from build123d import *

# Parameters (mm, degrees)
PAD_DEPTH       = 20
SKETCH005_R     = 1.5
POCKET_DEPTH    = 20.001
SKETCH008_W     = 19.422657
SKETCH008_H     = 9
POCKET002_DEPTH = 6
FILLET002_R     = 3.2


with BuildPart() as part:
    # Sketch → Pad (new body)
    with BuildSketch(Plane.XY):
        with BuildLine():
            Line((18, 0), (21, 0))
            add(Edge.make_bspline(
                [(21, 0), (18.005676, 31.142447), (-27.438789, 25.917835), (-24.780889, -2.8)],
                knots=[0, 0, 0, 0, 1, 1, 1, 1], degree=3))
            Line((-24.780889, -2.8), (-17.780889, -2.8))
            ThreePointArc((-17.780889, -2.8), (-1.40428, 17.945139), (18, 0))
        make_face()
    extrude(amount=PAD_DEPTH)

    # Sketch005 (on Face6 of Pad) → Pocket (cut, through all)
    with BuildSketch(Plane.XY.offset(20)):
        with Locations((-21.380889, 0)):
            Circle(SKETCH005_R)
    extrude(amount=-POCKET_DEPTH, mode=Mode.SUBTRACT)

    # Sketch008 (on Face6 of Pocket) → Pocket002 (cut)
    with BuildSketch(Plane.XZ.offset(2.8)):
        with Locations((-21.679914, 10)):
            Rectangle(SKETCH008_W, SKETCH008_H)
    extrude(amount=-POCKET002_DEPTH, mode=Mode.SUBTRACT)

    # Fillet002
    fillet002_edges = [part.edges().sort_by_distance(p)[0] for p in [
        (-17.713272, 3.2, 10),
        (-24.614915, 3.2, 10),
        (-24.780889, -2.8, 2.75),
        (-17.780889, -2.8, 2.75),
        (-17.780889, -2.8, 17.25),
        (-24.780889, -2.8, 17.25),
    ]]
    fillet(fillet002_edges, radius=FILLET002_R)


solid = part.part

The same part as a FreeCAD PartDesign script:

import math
import FreeCAD as App
import Part
import Sketcher
from FreeCAD import Vector


def edges_at(feature, points):
    """Names of the edges that pass closest to the given points."""
    edges = feature.Shape.Edges
    near = lambda p: min(range(len(edges)), key=lambda i: edges[i].distToShape(Part.Vertex(*p))[0])
    return sorted({f"Edge{near(p) + 1}" for p in points})

doc = App.newDocument("Part")
body = doc.addObject("PartDesign::Body", "Body")

sketch1 = doc.addObject("Sketcher::SketchObject", "Sketch")
body.addObject(sketch1)
sketch1.AttachmentSupport = (doc.XY_Plane, [""])
sketch1.MapMode = "FlatFace"
sketch1.addGeometry([
    Part.LineSegment(Vector(18, 0, 0), Vector(21, 0, 0)),
    Part.BSplineCurve([Vector(21, 0, 0), Vector(18.005676, 31.142447, 0), Vector(-27.438789, 25.917835, 0), Vector(-24.780889, -2.8, 0)], [4, 4], [0, 1], False, 3, [1, 1, 1, 1], False),
    Part.LineSegment(Vector(-24.780889, -2.8, 0), Vector(-17.780889, -2.8, 0)),
    Part.ArcOfCircle(Part.Circle(Vector(0, 0, 0), Vector(0, 0, 1), 18), math.radians(-0.000001), math.radians(188.949019)),
], False)
sketch1.addConstraint([
    Sketcher.Constraint("Block", 1),
    Sketcher.Constraint("Coincident", 0, 2, 1, 1),
    Sketcher.Constraint("Coincident", 1, 2, 2, 1),
    Sketcher.Constraint("Coincident", 2, 2, 3, 2),
    Sketcher.Constraint("Coincident", 3, 1, 0, 1),
    Sketcher.Constraint("Horizontal", 0),
    Sketcher.Constraint("Horizontal", 2),
    Sketcher.Constraint("Coincident", 3, 3, -1, 1),
    Sketcher.Constraint("Radius", 3, 18.0),
])
pad1 = doc.addObject("PartDesign::Pad", "Pad")
body.addObject(pad1)
pad1.Profile = sketch1
pad1.Length = 20

sketch2 = doc.addObject("Sketcher::SketchObject", "Sketch001")
body.addObject(sketch2)
sketch2.AttachmentSupport = (doc.XY_Plane, [""])
sketch2.MapMode = "FlatFace"
sketch2.AttachmentOffset = App.Placement(Vector(0, 0, 20), App.Rotation())
sketch2.addGeometry(Part.Circle(Vector(-21.4, 0, 0), Vector(0, 0, 1), 1.5), False)
sketch2.addConstraint([
    Sketcher.Constraint("PointOnObject", 0, 3, -1),
    Sketcher.Constraint("Diameter", 0, 3.0),
    Sketcher.Constraint("DistanceX", 0, 3, -1, 1, 21.380889),
])
pocket1 = doc.addObject("PartDesign::Pocket", "Pocket")
body.addObject(pocket1)
pocket1.Profile = sketch2
pocket1.Type = "ThroughAll"

sketch3 = doc.addObject("Sketcher::SketchObject", "Sketch002")
body.addObject(sketch3)
sketch3.AttachmentSupport = (doc.XZ_Plane, [""])
sketch3.MapMode = "FlatFace"
sketch3.AttachmentOffset = App.Placement(Vector(0, 0, 2.8), App.Rotation())
sketch3.addGeometry([
    Part.LineSegment(Vector(-31, 14, 0), Vector(-31, 6, 0)),
    Part.LineSegment(Vector(-31, 6, 0), Vector(-12, 6, 0)),
    Part.LineSegment(Vector(-12, 6, 0), Vector(-12, 14, 0)),
    Part.LineSegment(Vector(-12, 14, 0), Vector(-31, 14, 0)),
], False)
sketch3.addConstraint([
    Sketcher.Constraint("Coincident", 0, 2, 1, 1),
    Sketcher.Constraint("Coincident", 1, 2, 2, 1),
    Sketcher.Constraint("Coincident", 2, 2, 3, 1),
    Sketcher.Constraint("Coincident", 3, 2, 0, 1),
    Sketcher.Constraint("Vertical", 0),
    Sketcher.Constraint("Horizontal", 1),
    Sketcher.Constraint("Vertical", 2),
    Sketcher.Constraint("Horizontal", 3),
    Sketcher.Constraint("DistanceY", 0, 2, 0, 1, 9.0),
    Sketcher.Constraint("DistanceY", -1, 1, 0, 2, 5.5),
    Sketcher.Constraint("DistanceX", 1, 1, 1, 2, 19.422657),
    Sketcher.Constraint("DistanceX", 0, 2, -1, 1, 31.391243),
])
pocket2 = doc.addObject("PartDesign::Pocket", "Pocket001")
body.addObject(pocket2)
pocket2.Profile = sketch3
pocket2.Length = 6
doc.recompute()

fillet = doc.addObject("PartDesign::Fillet", "Fillet")
body.addObject(fillet)
fillet.Base = (pocket2, edges_at(pocket2, [
    (-17.713, 3.2, 10),
    (-24.615, 3.2, 10),
    (-24.781, -2.8, 2.75),
    (-17.781, -2.8, 2.75),
    (-17.781, -2.8, 17.25),
    (-24.781, -2.8, 17.25),
]))
fillet.Radius = 3.2

doc.recompute()
